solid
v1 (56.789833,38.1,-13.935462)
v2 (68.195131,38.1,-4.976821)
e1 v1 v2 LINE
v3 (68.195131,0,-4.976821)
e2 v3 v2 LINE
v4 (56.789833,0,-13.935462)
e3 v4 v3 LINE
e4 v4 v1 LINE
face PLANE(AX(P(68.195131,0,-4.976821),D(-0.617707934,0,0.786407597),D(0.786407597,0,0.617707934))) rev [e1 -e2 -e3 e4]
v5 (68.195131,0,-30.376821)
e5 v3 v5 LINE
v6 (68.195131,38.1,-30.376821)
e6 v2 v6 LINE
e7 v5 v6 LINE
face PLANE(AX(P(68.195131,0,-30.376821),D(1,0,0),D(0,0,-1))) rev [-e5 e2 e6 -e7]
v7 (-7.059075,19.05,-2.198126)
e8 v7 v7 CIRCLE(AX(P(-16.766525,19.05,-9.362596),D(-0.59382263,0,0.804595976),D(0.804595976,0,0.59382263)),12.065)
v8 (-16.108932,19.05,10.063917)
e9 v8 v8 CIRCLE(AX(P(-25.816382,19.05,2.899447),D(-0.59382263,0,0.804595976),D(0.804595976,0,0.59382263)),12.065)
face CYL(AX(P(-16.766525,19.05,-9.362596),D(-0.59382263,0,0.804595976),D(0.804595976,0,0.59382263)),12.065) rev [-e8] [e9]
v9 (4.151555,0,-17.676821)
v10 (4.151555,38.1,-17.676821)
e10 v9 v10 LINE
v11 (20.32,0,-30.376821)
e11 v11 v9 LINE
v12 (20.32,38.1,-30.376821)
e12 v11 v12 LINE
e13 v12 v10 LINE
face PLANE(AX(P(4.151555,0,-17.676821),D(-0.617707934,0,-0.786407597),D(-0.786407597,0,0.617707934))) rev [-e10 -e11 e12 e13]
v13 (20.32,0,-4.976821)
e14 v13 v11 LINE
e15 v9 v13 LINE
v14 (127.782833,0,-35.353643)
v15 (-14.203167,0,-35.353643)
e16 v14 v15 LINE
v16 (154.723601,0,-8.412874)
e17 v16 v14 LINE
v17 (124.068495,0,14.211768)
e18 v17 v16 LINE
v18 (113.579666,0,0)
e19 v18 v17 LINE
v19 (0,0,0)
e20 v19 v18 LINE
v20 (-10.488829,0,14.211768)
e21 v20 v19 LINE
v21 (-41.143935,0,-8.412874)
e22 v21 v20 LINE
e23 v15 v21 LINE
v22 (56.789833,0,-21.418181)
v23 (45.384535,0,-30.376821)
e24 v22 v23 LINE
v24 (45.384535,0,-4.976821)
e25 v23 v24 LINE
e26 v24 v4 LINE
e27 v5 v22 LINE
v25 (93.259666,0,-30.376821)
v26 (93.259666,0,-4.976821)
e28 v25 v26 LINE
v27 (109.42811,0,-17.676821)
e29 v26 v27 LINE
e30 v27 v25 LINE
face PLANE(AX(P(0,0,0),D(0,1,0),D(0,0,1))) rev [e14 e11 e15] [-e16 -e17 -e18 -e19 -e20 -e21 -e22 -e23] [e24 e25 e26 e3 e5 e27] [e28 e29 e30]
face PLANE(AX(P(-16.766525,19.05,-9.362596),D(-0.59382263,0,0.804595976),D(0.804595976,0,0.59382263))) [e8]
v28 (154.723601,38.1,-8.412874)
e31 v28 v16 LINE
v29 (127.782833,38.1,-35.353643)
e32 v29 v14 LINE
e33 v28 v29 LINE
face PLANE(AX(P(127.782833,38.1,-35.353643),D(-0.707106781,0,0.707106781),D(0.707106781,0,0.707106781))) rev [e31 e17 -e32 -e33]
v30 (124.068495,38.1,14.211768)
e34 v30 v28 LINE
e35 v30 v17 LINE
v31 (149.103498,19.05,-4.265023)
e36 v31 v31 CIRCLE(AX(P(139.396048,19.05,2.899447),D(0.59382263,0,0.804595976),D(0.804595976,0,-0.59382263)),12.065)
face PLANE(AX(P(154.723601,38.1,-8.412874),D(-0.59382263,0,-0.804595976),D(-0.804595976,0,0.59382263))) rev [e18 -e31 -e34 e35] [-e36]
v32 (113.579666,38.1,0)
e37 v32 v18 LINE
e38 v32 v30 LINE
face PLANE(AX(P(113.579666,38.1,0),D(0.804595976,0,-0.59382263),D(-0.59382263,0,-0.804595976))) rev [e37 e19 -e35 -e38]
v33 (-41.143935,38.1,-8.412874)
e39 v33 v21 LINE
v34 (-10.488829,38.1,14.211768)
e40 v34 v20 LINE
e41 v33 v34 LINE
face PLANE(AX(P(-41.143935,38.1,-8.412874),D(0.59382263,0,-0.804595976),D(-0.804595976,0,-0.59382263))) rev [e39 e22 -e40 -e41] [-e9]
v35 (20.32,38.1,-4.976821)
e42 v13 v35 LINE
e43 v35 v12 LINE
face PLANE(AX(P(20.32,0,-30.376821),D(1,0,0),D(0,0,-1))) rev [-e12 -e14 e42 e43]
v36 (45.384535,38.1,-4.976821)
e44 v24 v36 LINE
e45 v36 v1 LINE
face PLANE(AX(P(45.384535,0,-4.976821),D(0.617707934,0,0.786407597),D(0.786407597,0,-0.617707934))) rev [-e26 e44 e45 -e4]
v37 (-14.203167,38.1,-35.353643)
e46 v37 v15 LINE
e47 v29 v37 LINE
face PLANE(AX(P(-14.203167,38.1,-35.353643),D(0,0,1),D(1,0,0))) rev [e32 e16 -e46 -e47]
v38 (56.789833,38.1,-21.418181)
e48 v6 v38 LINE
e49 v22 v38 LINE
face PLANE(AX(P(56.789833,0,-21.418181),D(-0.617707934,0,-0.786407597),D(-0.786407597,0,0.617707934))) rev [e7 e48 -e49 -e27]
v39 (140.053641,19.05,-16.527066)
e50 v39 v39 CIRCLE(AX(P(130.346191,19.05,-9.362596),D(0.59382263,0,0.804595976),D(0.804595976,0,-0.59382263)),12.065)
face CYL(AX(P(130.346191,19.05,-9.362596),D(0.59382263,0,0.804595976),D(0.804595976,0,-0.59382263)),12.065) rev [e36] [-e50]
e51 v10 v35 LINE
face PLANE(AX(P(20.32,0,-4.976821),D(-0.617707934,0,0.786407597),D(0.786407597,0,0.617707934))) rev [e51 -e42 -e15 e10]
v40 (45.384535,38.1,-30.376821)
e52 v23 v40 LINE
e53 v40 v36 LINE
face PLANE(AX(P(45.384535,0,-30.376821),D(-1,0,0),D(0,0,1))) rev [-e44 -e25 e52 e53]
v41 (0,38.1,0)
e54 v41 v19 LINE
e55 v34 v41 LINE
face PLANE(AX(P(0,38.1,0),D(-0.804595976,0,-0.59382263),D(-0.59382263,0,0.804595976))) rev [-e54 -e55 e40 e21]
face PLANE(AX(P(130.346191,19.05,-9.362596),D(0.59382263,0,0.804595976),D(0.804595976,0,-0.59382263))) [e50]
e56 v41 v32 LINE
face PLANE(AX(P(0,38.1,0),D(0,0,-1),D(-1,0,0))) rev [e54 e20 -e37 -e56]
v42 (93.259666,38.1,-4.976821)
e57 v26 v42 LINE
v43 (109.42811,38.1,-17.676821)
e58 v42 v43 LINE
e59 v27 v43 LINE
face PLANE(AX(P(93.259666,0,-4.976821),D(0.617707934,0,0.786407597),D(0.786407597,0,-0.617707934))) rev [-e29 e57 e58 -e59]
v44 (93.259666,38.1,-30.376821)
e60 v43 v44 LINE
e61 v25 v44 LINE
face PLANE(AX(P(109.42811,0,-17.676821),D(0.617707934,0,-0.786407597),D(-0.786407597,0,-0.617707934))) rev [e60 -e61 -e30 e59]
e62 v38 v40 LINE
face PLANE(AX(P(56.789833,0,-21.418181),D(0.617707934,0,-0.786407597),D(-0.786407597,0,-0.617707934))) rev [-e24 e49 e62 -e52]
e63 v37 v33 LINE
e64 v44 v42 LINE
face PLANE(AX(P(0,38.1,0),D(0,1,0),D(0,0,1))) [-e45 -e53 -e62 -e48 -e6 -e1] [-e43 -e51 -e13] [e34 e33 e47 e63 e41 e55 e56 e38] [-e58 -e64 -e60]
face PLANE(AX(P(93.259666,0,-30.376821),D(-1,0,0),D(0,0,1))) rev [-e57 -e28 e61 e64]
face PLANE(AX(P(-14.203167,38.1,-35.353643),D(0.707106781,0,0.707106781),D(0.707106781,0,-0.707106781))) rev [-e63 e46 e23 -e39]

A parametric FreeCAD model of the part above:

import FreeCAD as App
import Part
import Sketcher

V = App.Vector
Q = App.Units.Quantity

doc = App.newDocument("Part")
body = doc.addObject("PartDesign::Body", "Body")

sketch1 = body.newObject("Sketcher::SketchObject", "Sketch")
sketch1.AttachmentSupport = (doc.getObject("XZ_Plane"), [""])
sketch1.MapMode = "FlatFace"
sketch1.addGeometry(Part.LineSegment(V(0, 0, 0), V(113.579666, 0, 0)), False)
sketch1.addGeometry(Part.LineSegment(V(113.579666, 0, 0), V(124.068495, 14.211768, 0)), False)
sketch1.addGeometry(Part.LineSegment(V(124.068495, 14.211768, 0), V(154.723601, -8.412874, 0)), False)
sketch1.addGeometry(Part.LineSegment(V(154.723601, -8.412874, 0), V(127.782833, -35.353643, 0)), False)
sketch1.addGeometry(Part.LineSegment(V(127.782833, -35.353643, 0), V(-14.203167, -35.353643, 0)), False)
sketch1.addGeometry(Part.LineSegment(V(-14.203167, -35.353643, 0), V(-41.143935, -8.412874, 0)), False)
sketch1.addGeometry(Part.LineSegment(V(-41.143935, -8.412874, 0), V(-10.488829, 14.211768, 0)), False)
sketch1.addGeometry(Part.LineSegment(V(-10.488829, 14.211768, 0), V(0, 0, 0)), False)
sketch1.addConstraint(Sketcher.Constraint("Coincident", 0, 2, 1, 1))
sketch1.addConstraint(Sketcher.Constraint("Coincident", 1, 2, 2, 1))
sketch1.addConstraint(Sketcher.Constraint("Coincident", 2, 2, 3, 1))
sketch1.addConstraint(Sketcher.Constraint("Coincident", 3, 2, 4, 1))
sketch1.addConstraint(Sketcher.Constraint("Coincident", 4, 2, 5, 1))
sketch1.addConstraint(Sketcher.Constraint("Coincident", 5, 2, 6, 1))
sketch1.addConstraint(Sketcher.Constraint("Coincident", 6, 2, 7, 1))
sketch1.addConstraint(Sketcher.Constraint("Coincident", 7, 2, 0, 1))
sketch1.addConstraint(Sketcher.Constraint("Horizontal", 0))
sketch1.addConstraint(Sketcher.Constraint("Horizontal", 4))
sketch1.addConstraint(Sketcher.Constraint("Coincident", 7, 2, -1, 1))
sketch1.addConstraint(Sketcher.Constraint("Perpendicular", 1, 2))
sketch1.addConstraint(Sketcher.Constraint("Perpendicular", 3, 5))
sketch1.addConstraint(Sketcher.Constraint("Perpendicular", 6, 7))
sketch1.addConstraint(Sketcher.Constraint("Horizontal", 2, 2, 5, 2))
sketch1.addConstraint(Sketcher.Constraint("Horizontal", 1, 2, 6, 2))
sketch1.addConstraint(Sketcher.Constraint("Equal", 2, 3))
sketch1.addConstraint(Sketcher.Constraint("Equal", 3, 5))
sketch1.addConstraint(Sketcher.Constraint("Equal", 5, 6))
sketch1.addConstraint(Sketcher.Constraint("Distance", 2, Q("1.5 in")))
sketch1.addConstraint(Sketcher.Constraint("DistanceX", 4, 2, 4, 1, Q("5.59 in")))
sketch1.addConstraint(Sketcher.Constraint("DistanceX", -1, 1, 2, 2, 154.723601))
sketch1.addConstraint(Sketcher.Constraint("DistanceX", 6, 2, -1, 1, 10.488829))
pad1 = body.newObject("PartDesign::Pad", "Pad")
pad1.Profile = sketch1
pad1.Length = Q("1.5 in")
pad1.Reversed = True

sketch2 = body.newObject("Sketcher::SketchObject", "Sketch001")
sketch2.Placement = App.Placement(V(-10.488829, 0, 14.211768), App.Rotation(V(0.804595976, 0, 0.59382263), V(0, 1, 0), V(-0.59382263, 0, 0.804595976), "ZXY"))
sketch2.addGeometry(Part.Circle(V(-19.05, 19.05, 0), V(0, 0, 1), 12.065), False)
sketch2.addConstraint(Sketcher.Constraint("Diameter", 0, Q("0.95 in")))
sketch2.addConstraint(Sketcher.Constraint("DistanceX", 0, 3, -1, 1, Q("0.75 in")))
sketch2.addConstraint(Sketcher.Constraint("DistanceY", -1, 1, 0, 3, Q("0.75 in")))
pocket1 = body.newObject("PartDesign::Pocket", "Pocket")
pocket1.Profile = sketch2
pocket1.Length = Q("0.6 in")

sketch3 = body.newObject("Sketcher::SketchObject", "Sketch002")
sketch3.Placement = App.Placement(V(50.539894, 0, 68.47869), App.Rotation(V(0.804595976, 0, -0.59382263), V(0, 1, 0), V(0.59382263, 0, 0.804595976), "ZXY"))
sketch3.addGeometry(Part.Circle(V(110.435742, 19.05, 0), V(0, 0, 1), 12.065), False)
sketch3.addConstraint(Sketcher.Constraint("Diameter", 0, Q("0.95 in")))
sketch3.addConstraint(Sketcher.Constraint("DistanceY", -1, 1, 0, 3, Q("0.75 in")))
sketch3.addConstraint(Sketcher.Constraint("DistanceX", -1, 1, 0, 3, 110.435742))
pocket2 = body.newObject("PartDesign::Pocket", "Pocket001")
pocket2.Profile = sketch3
pocket2.Length = Q("0.6 in")

sketch4 = body.newObject("Sketcher::SketchObject", "Sketch003")
sketch4.AttachmentSupport = (doc.getObject("XZ_Plane"), [""])
sketch4.MapMode = "FlatFace"
sketch4.AttachmentOffset = App.Placement(V(0, 0, -1.5 * 25.4), App.Rotation())
sketch4.addGeometry(Part.LineSegment(V(20.32, -30.376821, 0), V(4.151555, -17.676821, 0)), False)
sketch4.addGeometry(Part.LineSegment(V(4.151555, -17.676821, 0), V(20.32, -4.976821, 0)), False)
sketch4.addGeometry(Part.LineSegment(V(20.32, -4.976821, 0), V(20.32, -30.376821, 0)), False)
sketch4.addGeometry(Part.LineSegment(V(45.384535, -30.376821, 0), V(45.384535, -4.976821, 0)), False)
sketch4.addGeometry(Part.LineSegment(V(45.384535, -4.976821, 0), V(56.789833, -13.935462, 0)), False)
sketch4.addGeometry(Part.LineSegment(V(56.789833, -13.935462, 0), V(68.195131, -4.976821, 0)), False)
sketch4.addGeometry(Part.LineSegment(V(68.195131, -4.976821, 0), V(68.195131, -30.376821, 0)), False)
sketch4.addGeometry(Part.LineSegment(V(68.195131, -30.376821, 0), V(56.789833, -21.418181, 0)), False)
sketch4.addGeometry(Part.LineSegment(V(56.789833, -21.418181, 0), V(45.384535, -30.376821, 0)), False)
sketch4.addGeometry(Part.LineSegment(V(93.259666, -30.376821, 0), V(93.259666, -4.976821, 0)), False)
sketch4.addGeometry(Part.LineSegment(V(93.259666, -4.976821, 0), V(109.42811, -17.676821, 0)), False)
sketch4.addGeometry(Part.LineSegment(V(109.42811, -17.676821, 0), V(93.259666, -30.376821, 0)), False)
sketch4.addConstraint(Sketcher.Constraint("Coincident", 0, 2, 1, 1))
sketch4.addConstraint(Sketcher.Constraint("Coincident", 1, 2, 2, 1))
sketch4.addConstraint(Sketcher.Constraint("Coincident", 2, 2, 0, 1))
sketch4.addConstraint(Sketcher.Constraint("Coincident", 3, 2, 4, 1))
sketch4.addConstraint(Sketcher.Constraint("Coincident", 4, 2, 5, 1))
sketch4.addConstraint(Sketcher.Constraint("Coincident", 5, 2, 6, 1))
sketch4.addConstraint(Sketcher.Constraint("Coincident", 6, 2, 7, 1))
sketch4.addConstraint(Sketcher.Constraint("Coincident", 7, 2, 8, 1))
sketch4.addConstraint(Sketcher.Constraint("Coincident", 8, 2, 3, 1))
sketch4.addConstraint(Sketcher.Constraint("Coincident", 9, 2, 10, 1))
sketch4.addConstraint(Sketcher.Constraint("Coincident", 10, 2, 11, 1))
sketch4.addConstraint(Sketcher.Constraint("Coincident", 11, 2, 9, 1))
sketch4.addConstraint(Sketcher.Constraint("Vertical", 2))
sketch4.addConstraint(Sketcher.Constraint("Vertical", 3))
sketch4.addConstraint(Sketcher.Constraint("Vertical", 6))
sketch4.addConstraint(Sketcher.Constraint("Vertical", 9))
sketch4.addConstraint(Sketcher.Constraint("Parallel", 0, 4))
sketch4.addConstraint(Sketcher.Constraint("Parallel", 1, 5))
sketch4.addConstraint(Sketcher.Constraint("Parallel", 4, 7))
sketch4.addConstraint(Sketcher.Constraint("Parallel", 5, 8))
sketch4.addConstraint(Sketcher.Constraint("Parallel", 7, 10))
sketch4.addConstraint(Sketcher.Constraint("Parallel", 8, 11))
sketch4.addConstraint(Sketcher.Constraint("Horizontal", 1, 2, 3, 2))
sketch4.addConstraint(Sketcher.Constraint("Horizontal", 3, 2, 5, 2))
sketch4.addConstraint(Sketcher.Constraint("Horizontal", 2, 2, 6, 2))
sketch4.addConstraint(Sketcher.Constraint("Horizontal", 6, 2, 8, 2))
sketch4.addConstraint(Sketcher.Constraint("Horizontal", 5, 2, 9, 2))
sketch4.addConstraint(Sketcher.Constraint("Horizontal", 0, 2, 10, 2))
sketch4.addConstraint(Sketcher.Constraint("Horizontal", 8, 2, 11, 2))
sketch4.addConstraint(Sketcher.Constraint("DistanceY", 2, 2, 2, 1, Q("1 in")))
sketch4.addConstraint(Sketcher.Constraint("DistanceX", -1, 1, 1, 2, Q("0.8 in")))
sketch4.addConstraint(Sketcher.Constraint("Distance", 0, 20.559878))
sketch4.addConstraint(Sketcher.Constraint("DistanceY", 0, 2, -1, 1, 17.676821))
sketch4.addConstraint(Sketcher.Constraint("DistanceY", 4, 2, -1, 1, 13.935462))
sketch4.addConstraint(Sketcher.Constraint("DistanceX", -1, 1, 5, 2, 68.195131))
sketch4.addConstraint(Sketcher.Constraint("DistanceX", -1, 1, 10, 2, 109.42811))
pocket3 = body.newObject("PartDesign::Pocket", "Pocket002")
pocket3.Profile = sketch4
pocket3.Length = Q("1.5 in")
pocket3.Reversed = True

doc.recompute()
